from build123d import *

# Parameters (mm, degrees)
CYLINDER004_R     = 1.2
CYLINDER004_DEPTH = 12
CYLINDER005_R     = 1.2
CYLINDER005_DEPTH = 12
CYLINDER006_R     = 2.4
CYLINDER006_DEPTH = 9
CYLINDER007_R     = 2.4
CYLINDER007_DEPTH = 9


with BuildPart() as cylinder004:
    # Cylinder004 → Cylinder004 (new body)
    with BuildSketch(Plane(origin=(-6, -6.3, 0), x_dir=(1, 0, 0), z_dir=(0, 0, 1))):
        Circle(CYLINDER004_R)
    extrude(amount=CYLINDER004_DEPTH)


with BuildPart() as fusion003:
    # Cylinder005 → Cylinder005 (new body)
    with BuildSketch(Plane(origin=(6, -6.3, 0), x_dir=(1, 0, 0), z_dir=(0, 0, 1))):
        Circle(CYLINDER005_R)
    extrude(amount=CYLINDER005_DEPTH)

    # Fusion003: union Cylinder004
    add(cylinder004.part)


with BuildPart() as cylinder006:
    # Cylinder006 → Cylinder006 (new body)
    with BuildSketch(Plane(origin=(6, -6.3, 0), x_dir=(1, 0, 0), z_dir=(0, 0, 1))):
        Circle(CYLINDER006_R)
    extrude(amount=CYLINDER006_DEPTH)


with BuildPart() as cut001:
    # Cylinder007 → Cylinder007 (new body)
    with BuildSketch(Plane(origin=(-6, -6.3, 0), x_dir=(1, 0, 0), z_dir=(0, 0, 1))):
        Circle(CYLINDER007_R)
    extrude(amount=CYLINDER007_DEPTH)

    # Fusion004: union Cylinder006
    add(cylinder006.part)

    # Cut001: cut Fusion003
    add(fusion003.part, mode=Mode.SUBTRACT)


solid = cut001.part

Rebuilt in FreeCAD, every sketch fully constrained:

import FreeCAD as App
import Part
import Sketcher
from FreeCAD import Vector

doc = App.newDocument("Part")
params = doc.addObject("Spreadsheet::Sheet", "Params")
for row, (alias, value) in enumerate([
    ("sketch1_diameter", "2.4 mm"),
    ("pad1_length", "12 mm"),
    ("sketch2_diameter", "2.4 mm"),
    ("pad2_length", "12 mm"),
    ("sketch3_diameter", "4.8 mm"),
    ("pad3_length", "9 mm"),
    ("sketch4_diameter", "4.8 mm"),
    ("pad4_length", "9 mm"),
], start=1):
    params.set(f"A{row}", alias)
    params.set(f"B{row}", "=" + value)
    params.setAlias(f"B{row}", alias)

body = doc.addObject("PartDesign::Body", "Body")

sketch1 = body.newObject("Sketcher::SketchObject", "Sketch")
sketch1.AttachmentSupport = (doc.getObject("XY_Plane"), [""])
sketch1.MapMode = "FlatFace"
sketch1.addGeometry(Part.Circle(Vector(-6, -6.3, 0), Vector(0, 0, 1), 1.2), False)
sketch1.addConstraint([
    Sketcher.Constraint("Diameter", 0, 2.4),
    Sketcher.Constraint("DistanceX", 0, 3, -1, 1, 6.0),
    Sketcher.Constraint("DistanceY", 0, 3, -1, 1, 6.3),
])
sketch1.setExpression("Constraints[0]", "Params.sketch1_diameter")
pad1 = body.newObject("PartDesign::Pad", "Pad")
pad1.Profile = sketch1
pad1.setExpression("Length", "Params.pad1_length")
body2 = doc.addObject("PartDesign::Body", "Body001")
body2.AllowCompound = True

sketch2 = body2.newObject("Sketcher::SketchObject", "Sketch001")
sketch2.AttachmentSupport = (doc.getObject("XY_Plane001"), [""])
sketch2.MapMode = "FlatFace"
sketch2.addGeometry(Part.Circle(Vector(6, -6.3, 0), Vector(0, 0, 1), 1.2), False)
sketch2.addConstraint([
    Sketcher.Constraint("Diameter", 0, 2.4),
    Sketcher.Constraint("DistanceX", -1, 1, 0, 3, 6.0),
    Sketcher.Constraint("DistanceY", 0, 3, -1, 1, 6.3),
])
sketch2.setExpression("Constraints[0]", "Params.sketch2_diameter")
pad2 = body2.newObject("PartDesign::Pad", "Pad001")
pad2.Profile = sketch2
pad2.setExpression("Length", "Params.pad2_length")
doc.recompute()

boolean = body2.newObject("PartDesign::Boolean", "Boolean")
boolean.Type = "Fuse"
boolean.addObjects([body])
body3 = doc.addObject("PartDesign::Body", "Body002")

sketch3 = body3.newObject("Sketcher::SketchObject", "Sketch002")
sketch3.AttachmentSupport = (doc.getObject("XY_Plane002"), [""])
sketch3.MapMode = "FlatFace"
sketch3.addGeometry(Part.Circle(Vector(6, -6.3, 0), Vector(0, 0, 1), 2.4), False)
sketch3.addConstraint([
    Sketcher.Constraint("Diameter", 0, 4.8),
    Sketcher.Constraint("DistanceX", -1, 1, 0, 3, 6.0),
    Sketcher.Constraint("DistanceY", 0, 3, -1, 1, 6.3),
])
sketch3.setExpression("Constraints[0]", "Params.sketch3_diameter")
pad3 = body3.newObject("PartDesign::Pad", "Pad002")
pad3.Profile = sketch3
pad3.setExpression("Length", "Params.pad3_length")
body4 = doc.addObject("PartDesign::Body", "Body003")
body4.AllowCompound = True

sketch4 = body4.newObject("Sketcher::SketchObject", "Sketch003")
sketch4.AttachmentSupport = (doc.getObject("XY_Plane003"), [""])
sketch4.MapMode = "FlatFace"
sketch4.addGeometry(Part.Circle(Vector(-6, -6.3, 0), Vector(0, 0, 1), 2.4), False)
sketch4.addConstraint([
    Sketcher.Constraint("Diameter", 0, 4.8),
    Sketcher.Constraint("DistanceX", 0, 3, -1, 1, 6.0),
    Sketcher.Constraint("DistanceY", 0, 3, -1, 1, 6.3),
])
sketch4.setExpression("Constraints[0]", "Params.sketch4_diameter")
pad4 = body4.newObject("PartDesign::Pad", "Pad003")
pad4.Profile = sketch4
pad4.setExpression("Length", "Params.pad4_length")
doc.recompute()

boolean2 = body4.newObject("PartDesign::Boolean", "Boolean001")
boolean2.Type = "Fuse"
boolean2.addObjects([body3])
doc.recompute()

boolean3 = body4.newObject("PartDesign::Boolean", "Boolean002")
boolean3.Type = "Cut"
boolean3.addObjects([body2])

doc.recompute()
